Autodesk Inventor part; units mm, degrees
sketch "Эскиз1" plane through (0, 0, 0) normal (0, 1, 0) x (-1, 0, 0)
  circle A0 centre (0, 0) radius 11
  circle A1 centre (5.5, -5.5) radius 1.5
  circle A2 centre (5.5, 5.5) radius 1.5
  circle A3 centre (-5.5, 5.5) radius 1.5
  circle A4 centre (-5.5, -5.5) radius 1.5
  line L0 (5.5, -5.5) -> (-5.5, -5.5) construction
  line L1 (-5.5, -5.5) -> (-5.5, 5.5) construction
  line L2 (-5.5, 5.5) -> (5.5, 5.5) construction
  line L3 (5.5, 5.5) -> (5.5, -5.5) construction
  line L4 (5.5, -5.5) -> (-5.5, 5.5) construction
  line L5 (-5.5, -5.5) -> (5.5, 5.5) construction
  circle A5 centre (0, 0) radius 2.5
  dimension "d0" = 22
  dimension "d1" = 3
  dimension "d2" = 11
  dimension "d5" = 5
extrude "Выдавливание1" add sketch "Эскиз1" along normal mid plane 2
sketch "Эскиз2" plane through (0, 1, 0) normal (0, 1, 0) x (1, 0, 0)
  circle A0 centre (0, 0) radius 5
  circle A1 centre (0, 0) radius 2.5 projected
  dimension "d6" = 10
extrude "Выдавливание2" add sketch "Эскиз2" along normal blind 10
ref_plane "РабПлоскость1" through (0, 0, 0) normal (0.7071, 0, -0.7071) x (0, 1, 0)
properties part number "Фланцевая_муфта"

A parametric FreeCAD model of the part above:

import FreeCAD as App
import Part
import Sketcher
Q = App.Units.Quantity

doc = App.newDocument("Part")
body = doc.addObject("PartDesign::Body", "Body")

# Sketch on XZ plane
sketch1 = body.newObject("Sketcher::SketchObject", "Sketch")
sketch1.AttachmentSupport = (doc.getObject("XZ_Plane"), [""])
sketch1.MapMode = "FlatFace"
sketch1.addGeometry([
    Part.Circle(App.Vector(0, 0, 0), App.Vector(0, 0, 1), 11),  # 0
    Part.Circle(App.Vector(5.5, -5.5, 0), App.Vector(0, 0, 1), 1.5),  # 1
    Part.Circle(App.Vector(-5.5, -5.5, 0), App.Vector(0, 0, 1), 1.5),  # 2
    Part.Circle(App.Vector(5.5, 5.5, 0), App.Vector(0, 0, 1), 1.5),  # 3
    Part.Circle(App.Vector(0, 0, 0), App.Vector(0, 0, 1), 2.5),  # 4
    Part.Circle(App.Vector(-5.5, 5.5, 0), App.Vector(0, 0, 1), 1.5),  # 5
], False)
sketch1.addConstraint([
    Sketcher.Constraint("Coincident", 0, 3, -1, 1),
    Sketcher.Constraint("Coincident", 4, 3, -1, 1),
    Sketcher.Constraint("Equal", 1, 2),
    Sketcher.Constraint("Equal", 2, 3),
    Sketcher.Constraint("Equal", 3, 5),
    Sketcher.Constraint("Symmetric", 2, 3, 3, 3, -1, 1),
    Sketcher.Constraint("Symmetric", 1, 3, 5, 3, -1, 1),
    Sketcher.Constraint("Symmetric", 1, 3, 2, 3, -2),
    Sketcher.Constraint("Diameter", 0, Q("22 mm")),
    Sketcher.Constraint("Diameter", 1, Q("3 mm")),
    Sketcher.Constraint("Diameter", 4, Q("5 mm")),
    Sketcher.Constraint("DistanceX", 2, 3, 1, 3, Q("11 mm")),
    Sketcher.Constraint("DistanceY", 1, 3, 3, 3, Q("11 mm")),
])
pad1 = body.newObject("PartDesign::Pad", "Pad")
pad1.Profile = sketch1
pad1.Length = 2
pad1.Midplane = True

# Sketch on XZ plane
sketch2 = body.newObject("Sketcher::SketchObject", "Sketch001")
sketch2.AttachmentSupport = (doc.getObject("XZ_Plane"), [""])
sketch2.MapMode = "FlatFace"
sketch2.AttachmentOffset = App.Placement(App.Vector(0, 0, -1), App.Rotation())
sketch2.addGeometry([
    Part.Circle(App.Vector(0, 0, 0), App.Vector(0, 0, 1), 5),
    Part.Circle(App.Vector(0, 0, 0), App.Vector(0, 0, 1), 2.5),
], False)
sketch2.addConstraint([
    Sketcher.Constraint("Coincident", 0, 3, -1, 1),
    Sketcher.Constraint("Coincident", 1, 3, -1, 1),
    Sketcher.Constraint("Diameter", 0, Q("10 mm")),
    Sketcher.Constraint("Diameter", 1, Q("5 mm")),
])
pad2 = body.newObject("PartDesign::Pad", "Pad001")
pad2.Profile = sketch2
pad2.Length = 10
pad2.Reversed = True

doc.recompute()
